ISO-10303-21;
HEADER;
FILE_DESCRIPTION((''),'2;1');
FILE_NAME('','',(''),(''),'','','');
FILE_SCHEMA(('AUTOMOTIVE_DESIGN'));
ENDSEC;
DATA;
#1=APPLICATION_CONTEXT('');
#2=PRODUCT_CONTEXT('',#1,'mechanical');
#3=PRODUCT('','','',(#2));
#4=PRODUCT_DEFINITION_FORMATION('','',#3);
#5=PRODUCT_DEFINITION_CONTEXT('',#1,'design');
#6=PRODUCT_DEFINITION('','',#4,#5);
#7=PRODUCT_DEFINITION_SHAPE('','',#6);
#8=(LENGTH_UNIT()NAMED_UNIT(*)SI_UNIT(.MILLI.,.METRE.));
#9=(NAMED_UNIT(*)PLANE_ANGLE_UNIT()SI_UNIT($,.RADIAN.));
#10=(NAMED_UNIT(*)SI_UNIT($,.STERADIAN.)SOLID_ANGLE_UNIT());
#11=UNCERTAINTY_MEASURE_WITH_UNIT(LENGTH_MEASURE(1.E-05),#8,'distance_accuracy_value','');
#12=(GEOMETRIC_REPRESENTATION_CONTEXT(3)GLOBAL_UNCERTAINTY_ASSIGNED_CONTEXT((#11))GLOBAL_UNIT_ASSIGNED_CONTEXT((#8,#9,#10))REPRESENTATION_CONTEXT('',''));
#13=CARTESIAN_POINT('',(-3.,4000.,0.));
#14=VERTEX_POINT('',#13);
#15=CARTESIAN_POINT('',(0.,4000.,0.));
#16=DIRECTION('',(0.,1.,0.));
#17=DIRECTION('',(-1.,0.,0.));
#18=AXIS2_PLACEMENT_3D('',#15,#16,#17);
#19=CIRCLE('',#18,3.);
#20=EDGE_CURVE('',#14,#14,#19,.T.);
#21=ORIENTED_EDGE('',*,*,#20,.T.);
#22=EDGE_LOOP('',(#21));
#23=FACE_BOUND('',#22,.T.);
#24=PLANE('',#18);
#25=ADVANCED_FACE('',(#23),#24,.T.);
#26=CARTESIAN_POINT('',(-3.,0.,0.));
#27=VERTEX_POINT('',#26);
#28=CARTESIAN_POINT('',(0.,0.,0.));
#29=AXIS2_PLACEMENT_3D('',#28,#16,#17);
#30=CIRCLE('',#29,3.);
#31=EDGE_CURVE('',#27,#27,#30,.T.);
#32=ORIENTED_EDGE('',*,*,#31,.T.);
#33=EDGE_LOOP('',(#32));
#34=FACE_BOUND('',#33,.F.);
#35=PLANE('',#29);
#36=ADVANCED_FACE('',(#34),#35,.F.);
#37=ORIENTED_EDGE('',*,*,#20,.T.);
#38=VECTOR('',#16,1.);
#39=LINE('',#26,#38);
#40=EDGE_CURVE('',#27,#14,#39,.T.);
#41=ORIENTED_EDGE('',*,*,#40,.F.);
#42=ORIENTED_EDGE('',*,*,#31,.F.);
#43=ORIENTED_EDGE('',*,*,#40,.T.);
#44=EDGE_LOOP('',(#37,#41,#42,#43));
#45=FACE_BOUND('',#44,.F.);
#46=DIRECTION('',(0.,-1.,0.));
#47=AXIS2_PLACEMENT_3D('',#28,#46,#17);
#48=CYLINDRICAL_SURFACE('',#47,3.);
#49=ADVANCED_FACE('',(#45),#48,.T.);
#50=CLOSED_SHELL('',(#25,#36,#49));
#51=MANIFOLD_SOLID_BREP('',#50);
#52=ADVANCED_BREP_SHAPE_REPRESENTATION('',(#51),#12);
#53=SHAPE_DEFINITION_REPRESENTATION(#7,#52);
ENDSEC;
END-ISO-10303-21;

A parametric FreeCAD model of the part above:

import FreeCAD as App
import Part
import Sketcher

V = App.Vector

doc = App.newDocument("Part")
body = doc.addObject("PartDesign::Body", "Body")

sketch1 = body.newObject("Sketcher::SketchObject", "Sketch")
sketch1.AttachmentSupport = (doc.getObject("XZ_Plane"), [""])
sketch1.MapMode = "FlatFace"
sketch1.addGeometry(Part.Circle(V(0, 0, 0), V(0, 0, 1), 3), False)
sketch1.addConstraint(Sketcher.Constraint("Coincident", 0, 3, -1, 1))
sketch1.addConstraint(Sketcher.Constraint("Diameter", 0, 6.0))
pad1 = body.newObject("PartDesign::Pad", "Pad")
pad1.Profile = sketch1
pad1.Length = 4000
pad1.Reversed = True

doc.recompute()
